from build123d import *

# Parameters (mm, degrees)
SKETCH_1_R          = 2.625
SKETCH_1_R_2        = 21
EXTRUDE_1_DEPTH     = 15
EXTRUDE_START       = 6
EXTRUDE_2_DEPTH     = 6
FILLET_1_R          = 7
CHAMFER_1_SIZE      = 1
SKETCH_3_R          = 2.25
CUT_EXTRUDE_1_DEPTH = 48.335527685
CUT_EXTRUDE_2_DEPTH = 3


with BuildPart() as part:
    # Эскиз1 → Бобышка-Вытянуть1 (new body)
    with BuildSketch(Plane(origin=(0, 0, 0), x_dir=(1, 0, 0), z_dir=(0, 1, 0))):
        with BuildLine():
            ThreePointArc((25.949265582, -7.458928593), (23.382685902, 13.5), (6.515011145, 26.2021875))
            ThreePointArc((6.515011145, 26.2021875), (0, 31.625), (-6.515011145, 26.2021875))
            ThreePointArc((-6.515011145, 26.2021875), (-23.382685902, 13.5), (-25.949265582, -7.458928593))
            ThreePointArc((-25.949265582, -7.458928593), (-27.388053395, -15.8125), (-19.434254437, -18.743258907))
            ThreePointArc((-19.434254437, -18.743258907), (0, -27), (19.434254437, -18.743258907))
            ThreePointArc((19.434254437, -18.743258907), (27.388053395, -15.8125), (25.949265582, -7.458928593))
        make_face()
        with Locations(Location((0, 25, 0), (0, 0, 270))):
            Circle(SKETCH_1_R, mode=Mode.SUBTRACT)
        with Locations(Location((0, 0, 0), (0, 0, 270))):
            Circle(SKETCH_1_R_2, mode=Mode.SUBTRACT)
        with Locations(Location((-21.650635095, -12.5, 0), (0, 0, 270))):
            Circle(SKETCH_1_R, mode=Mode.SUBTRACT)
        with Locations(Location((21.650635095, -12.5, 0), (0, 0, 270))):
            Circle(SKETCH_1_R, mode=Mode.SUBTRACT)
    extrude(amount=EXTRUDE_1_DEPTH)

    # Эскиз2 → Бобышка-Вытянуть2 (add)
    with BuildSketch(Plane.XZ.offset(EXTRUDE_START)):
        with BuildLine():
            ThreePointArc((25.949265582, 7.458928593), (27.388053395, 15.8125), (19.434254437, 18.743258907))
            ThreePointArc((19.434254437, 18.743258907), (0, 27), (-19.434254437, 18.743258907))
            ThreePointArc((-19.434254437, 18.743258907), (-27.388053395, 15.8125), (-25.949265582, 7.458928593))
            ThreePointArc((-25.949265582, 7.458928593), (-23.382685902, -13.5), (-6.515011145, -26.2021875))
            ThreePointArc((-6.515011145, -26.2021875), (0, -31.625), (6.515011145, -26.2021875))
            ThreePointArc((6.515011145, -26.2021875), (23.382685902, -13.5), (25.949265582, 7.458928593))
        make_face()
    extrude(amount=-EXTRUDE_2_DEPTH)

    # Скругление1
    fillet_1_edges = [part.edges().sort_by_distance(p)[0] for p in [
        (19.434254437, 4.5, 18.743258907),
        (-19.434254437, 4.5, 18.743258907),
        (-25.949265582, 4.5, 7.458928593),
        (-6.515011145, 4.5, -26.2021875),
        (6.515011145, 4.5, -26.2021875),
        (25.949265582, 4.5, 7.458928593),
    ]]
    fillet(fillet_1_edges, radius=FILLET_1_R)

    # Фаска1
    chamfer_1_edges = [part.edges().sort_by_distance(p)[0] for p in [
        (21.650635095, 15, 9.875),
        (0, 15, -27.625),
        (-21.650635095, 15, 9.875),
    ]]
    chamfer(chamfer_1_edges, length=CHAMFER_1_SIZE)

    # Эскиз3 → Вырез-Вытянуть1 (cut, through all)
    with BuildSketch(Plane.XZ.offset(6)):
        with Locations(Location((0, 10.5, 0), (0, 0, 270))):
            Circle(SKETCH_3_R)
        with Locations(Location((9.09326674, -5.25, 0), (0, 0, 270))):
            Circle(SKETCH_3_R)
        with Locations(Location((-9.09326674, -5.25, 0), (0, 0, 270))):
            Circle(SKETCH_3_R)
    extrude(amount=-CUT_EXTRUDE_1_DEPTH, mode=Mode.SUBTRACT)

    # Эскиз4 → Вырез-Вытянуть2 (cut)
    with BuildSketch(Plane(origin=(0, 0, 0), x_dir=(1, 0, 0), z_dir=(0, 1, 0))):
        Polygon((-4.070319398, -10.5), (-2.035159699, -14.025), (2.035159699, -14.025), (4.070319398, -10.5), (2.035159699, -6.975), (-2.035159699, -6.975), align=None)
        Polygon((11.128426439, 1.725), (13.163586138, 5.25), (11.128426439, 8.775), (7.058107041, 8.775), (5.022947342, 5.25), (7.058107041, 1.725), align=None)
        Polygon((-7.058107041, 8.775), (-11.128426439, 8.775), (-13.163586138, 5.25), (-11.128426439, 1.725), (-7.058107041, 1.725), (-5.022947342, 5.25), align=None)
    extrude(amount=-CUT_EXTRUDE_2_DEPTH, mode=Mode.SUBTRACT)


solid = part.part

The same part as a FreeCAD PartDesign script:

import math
import FreeCAD as App
import Part
import Sketcher
Q = App.Units.Quantity


def edges_at(feature, points):
    """Names of the edges that pass closest to the given points."""
    edges = feature.Shape.Edges
    near = lambda p: min(range(len(edges)), key=lambda i: edges[i].distToShape(Part.Vertex(*p))[0])
    return sorted({f"Edge{near(p) + 1}" for p in points})


def add_polygon(sketch, points):
    """Adds a closed chain of lines whose ends are joined by coincident constraints."""
    first, n = sketch.GeometryCount, len(points)
    for a, b in zip(points, points[1:] + points[:1]):
        sketch.addGeometry(Part.LineSegment(App.Vector(*a, 0), App.Vector(*b, 0)), False)
    for i in range(n):
        sketch.addConstraint(Sketcher.Constraint("Coincident", first + i, 2, first + (i + 1) % n, 1))

doc = App.newDocument("Part")
body = doc.addObject("PartDesign::Body", "Body")

sketch1 = doc.addObject("Sketcher::SketchObject", "Sketch")
body.addObject(sketch1)
sketch1.AttachmentSupport = (doc.XZ_Plane, [""])
sketch1.MapMode = "FlatFace"
sketch1.addGeometry([
    Part.ArcOfCircle(Part.Circle(App.Vector(0, 0, 0), App.Vector(0, 0, 1), 27), math.radians(-76.036914), math.radians(16.036914)),
    Part.ArcOfCircle(Part.Circle(App.Vector(0, -25, 0), App.Vector(0, 0, 1), 6.625), math.radians(-169.545056), math.radians(-10.454944)),
    Part.ArcOfCircle(Part.Circle(App.Vector(0, 0, 0), App.Vector(0, 0, 1), 27), math.radians(163.963086), math.radians(256.036914)),
    Part.ArcOfCircle(Part.Circle(App.Vector(-21.650635, 12.5, 0), App.Vector(0, 0, 1), 6.625), math.radians(70.454944), math.radians(229.545056)),
    Part.ArcOfCircle(Part.Circle(App.Vector(0, 0, 0), App.Vector(0, 0, 1), 27), math.radians(43.963086), math.radians(136.036914)),
    Part.ArcOfCircle(Part.Circle(App.Vector(21.650635, 12.5, 0), App.Vector(0, 0, 1), 6.625), math.radians(-49.545056), math.radians(109.545056)),
    Part.Circle(App.Vector(-21.650635, 12.5, 0), App.Vector(0, 0, 1), 2.625),
    Part.Circle(App.Vector(21.650635, 12.5, 0), App.Vector(0, 0, 1), 2.625),
    Part.Circle(App.Vector(0, 0, 0), App.Vector(0, 0, 1), 21),
    Part.Circle(App.Vector(0, -25, 0), App.Vector(0, 0, 1), 2.625),
], False)
sketch1.addConstraint([
    Sketcher.Constraint("Coincident", 0, 1, 1, 2),
    Sketcher.Constraint("Coincident", 1, 1, 2, 2),
    Sketcher.Constraint("Coincident", 2, 1, 3, 2),
    Sketcher.Constraint("Coincident", 3, 1, 4, 2),
    Sketcher.Constraint("Coincident", 4, 1, 5, 2),
    Sketcher.Constraint("Coincident", 5, 1, 0, 2),
    Sketcher.Constraint("Coincident", 0, 3, -1, 1),
    Sketcher.Constraint("Coincident", 2, 3, -1, 1),
    Sketcher.Constraint("Coincident", 4, 3, -1, 1),
    Sketcher.Constraint("Coincident", 8, 3, -1, 1),
    Sketcher.Constraint("Coincident", 6, 3, 3, 3),
    Sketcher.Constraint("Coincident", 7, 3, 5, 3),
    Sketcher.Constraint("Coincident", 9, 3, 1, 3),
    Sketcher.Constraint("Equal", 0, 2),
    Sketcher.Constraint("Equal", 1, 3),
    Sketcher.Constraint("Equal", 2, 4),
    Sketcher.Constraint("Equal", 3, 5),
    Sketcher.Constraint("Equal", 6, 7),
    Sketcher.Constraint("Equal", 7, 9),
    Sketcher.Constraint("Symmetric", 3, 3, 5, 3, -2),
    Sketcher.Constraint("PointOnObject", 1, 3, -2),
    Sketcher.Constraint("Diameter", 8, Q("42 mm")),
    Sketcher.Constraint("Radius", 0, Q("27 mm")),
    Sketcher.Constraint("Diameter", 6, Q("5.25 mm")),
    Sketcher.Constraint("DistanceY", 1, 3, -1, 1, Q("25 mm")),
    Sketcher.Constraint("Radius", 1, Q("6.625 mm")),
    Sketcher.Constraint("DistanceY", -1, 1, 3, 3, Q("12.5 mm")),
    Sketcher.Constraint("DistanceY", -1, 1, 2, 1, Q("7.458929 mm")),
])
pad1 = doc.addObject("PartDesign::Pad", "Pad")
body.addObject(pad1)
pad1.Profile = sketch1
pad1.Length = 15
pad1.Reversed = True

sketch2 = doc.addObject("Sketcher::SketchObject", "Sketch001")
body.addObject(sketch2)
sketch2.AttachmentSupport = (doc.XZ_Plane, [""])
sketch2.MapMode = "FlatFace"
sketch2.AttachmentOffset = App.Placement(App.Vector(0, 0, 6), App.Rotation())
sketch2.addGeometry([
    Part.ArcOfCircle(Part.Circle(App.Vector(21.650635, 12.5, 0), App.Vector(0, 0, 1), 6.625), math.radians(-49.545056), math.radians(109.545056)),
    Part.ArcOfCircle(Part.Circle(App.Vector(0, 0, 0), App.Vector(0, 0, 1), 27), math.radians(43.963086), math.radians(136.036914)),
    Part.ArcOfCircle(Part.Circle(App.Vector(-21.650635, 12.5, 0), App.Vector(0, 0, 1), 6.625), math.radians(70.454944), math.radians(229.545056)),
    Part.ArcOfCircle(Part.Circle(App.Vector(0, 0, 0), App.Vector(0, 0, 1), 27), math.radians(163.963086), math.radians(256.036914)),
    Part.ArcOfCircle(Part.Circle(App.Vector(0, -25, 0), App.Vector(0, 0, 1), 6.625), math.radians(-169.545056), math.radians(-10.454944)),
    Part.ArcOfCircle(Part.Circle(App.Vector(0, 0, 0), App.Vector(0, 0, 1), 27), math.radians(-76.036914), math.radians(16.036914)),
], False)
sketch2.addConstraint([
    Sketcher.Constraint("Coincident", 0, 2, 1, 1),
    Sketcher.Constraint("Coincident", 1, 2, 2, 1),
    Sketcher.Constraint("Coincident", 2, 2, 3, 1),
    Sketcher.Constraint("Coincident", 3, 2, 4, 1),
    Sketcher.Constraint("Coincident", 4, 2, 5, 1),
    Sketcher.Constraint("Coincident", 5, 2, 0, 1),
    Sketcher.Constraint("Coincident", 1, 3, -1, 1),
    Sketcher.Constraint("Coincident", 3, 3, -1, 1),
    Sketcher.Constraint("Coincident", 5, 3, -1, 1),
    Sketcher.Constraint("Equal", 0, 2),
    Sketcher.Constraint("Equal", 1, 3),
    Sketcher.Constraint("Equal", 2, 4),
    Sketcher.Constraint("Equal", 3, 5),
    Sketcher.Constraint("Symmetric", 0, 3, 2, 3, -2),
    Sketcher.Constraint("PointOnObject", 4, 3, -2),
    Sketcher.Constraint("Radius", 1, Q("27 mm")),
    Sketcher.Constraint("DistanceY", 4, 3, -1, 1, Q("25 mm")),
    Sketcher.Constraint("Radius", 0, Q("6.625 mm")),
    Sketcher.Constraint("DistanceY", -1, 1, 0, 3, Q("12.5 mm")),
    Sketcher.Constraint("DistanceY", -1, 1, 0, 2, Q("18.743259 mm")),
])
pad2 = doc.addObject("PartDesign::Pad", "Pad001")
body.addObject(pad2)
pad2.Profile = sketch2
pad2.Length = 6
pad2.Reversed = True
doc.recompute()

fillet = doc.addObject("PartDesign::Fillet", "Fillet")
body.addObject(fillet)
fillet.Base = (pad2, edges_at(pad2, [
    (19.434, 4.5, 18.743),
    (-19.434, 4.5, 18.743),
    (-25.949, 4.5, 7.459),
    (-6.515, 4.5, -26.202),
    (6.515, 4.5, -26.202),
    (25.949, 4.5, 7.459),
]))
fillet.Radius = 7
doc.recompute()

chamfer = doc.addObject("PartDesign::Chamfer", "Chamfer")
body.addObject(chamfer)
chamfer.Base = (fillet, edges_at(fillet, [(21.651, 15, 9.875), (0, 15, -27.625), (-21.651, 15, 9.875)]))
chamfer.Size = 1

sketch3 = doc.addObject("Sketcher::SketchObject", "Sketch002")
body.addObject(sketch3)
sketch3.AttachmentSupport = (doc.XZ_Plane, [""])
sketch3.MapMode = "FlatFace"
sketch3.AttachmentOffset = App.Placement(App.Vector(0, 0, 6), App.Rotation())
sketch3.addGeometry([
    Part.Circle(App.Vector(0, 10.5, 0), App.Vector(0, 0, 1), 2.25),
    Part.Circle(App.Vector(9.093267, -5.25, 0), App.Vector(0, 0, 1), 2.25),
    Part.Circle(App.Vector(-9.093267, -5.25, 0), App.Vector(0, 0, 1), 2.25),
], False)
sketch3.addConstraint([
    Sketcher.Constraint("Equal", 0, 1),
    Sketcher.Constraint("Equal", 1, 2),
    Sketcher.Constraint("Symmetric", 1, 3, 2, 3, -2),
    Sketcher.Constraint("PointOnObject", 0, 3, -2),
    Sketcher.Constraint("Diameter", 0, Q("4.5 mm")),
    Sketcher.Constraint("DistanceY", -1, 1, 0, 3, Q("10.5 mm")),
    Sketcher.Constraint("DistanceY", 1, 3, -1, 1, Q("5.25 mm")),
    Sketcher.Constraint("DistanceX", -1, 1, 1, 3, Q("9.093267 mm")),
])
pocket1 = doc.addObject("PartDesign::Pocket", "Pocket")
body.addObject(pocket1)
pocket1.Profile = sketch3
pocket1.Type = "ThroughAll"

sketch4 = doc.addObject("Sketcher::SketchObject", "Sketch003")
body.addObject(sketch4)
sketch4.AttachmentSupport = (doc.XZ_Plane, [""])
sketch4.MapMode = "FlatFace"
add_polygon(sketch4, [(-4.070319, 10.5), (-2.03516, 14.025), (2.03516, 14.025), (4.070319, 10.5), (2.03516, 6.975), (-2.03516, 6.975)])
add_polygon(sketch4, [(11.128426, -1.725), (13.163586, -5.25), (11.128426, -8.775), (7.058107, -8.775), (5.022947, -5.25), (7.058107, -1.725)])
add_polygon(sketch4, [(-7.058107, -8.775), (-11.128426, -8.775), (-13.163586, -5.25), (-11.128426, -1.725), (-7.058107, -1.725), (-5.022947, -5.25)])
sketch4.addConstraint([
    Sketcher.Constraint("Horizontal", 1),
    Sketcher.Constraint("Horizontal", 4),
    Sketcher.Constraint("Horizontal", 8),
    Sketcher.Constraint("Horizontal", 11),
    Sketcher.Constraint("Horizontal", 12),
    Sketcher.Constraint("Horizontal", 15),
    Sketcher.Constraint("Symmetric", 2, 2, 5, 2, -2),
    Sketcher.Constraint("Symmetric", 7, 2, 12, 2, -2),
    Sketcher.Constraint("Symmetric", 6, 2, 13, 2, -2),
    Sketcher.Constraint("Symmetric", 11, 2, 14, 2, -2),
    Sketcher.Constraint("Symmetric", 9, 2, 16, 2, -2),
    Sketcher.Constraint("Parallel", 0, 3),
    Sketcher.Constraint("Parallel", 2, 5),
    Sketcher.Constraint("Parallel", 5, 6),
    Sketcher.Constraint("Parallel", 3, 7),
    Sketcher.Constraint("Parallel", 6, 9),
    Sketcher.Constraint("Parallel", 7, 10),
    Sketcher.Constraint("Parallel", 9, 13),
    Sketcher.Constraint("Parallel", 13, 16),
    Sketcher.Constraint("Parallel", 14, 17),
    Sketcher.Constraint("Horizontal", 6, 2, 9, 2),
    Sketcher.Constraint("Vertical", 1, 2, 3, 2),
    Sketcher.Constraint("Vertical", 8, 2, 10, 2),
    Sketcher.Constraint("Equal", 4, 8),
    Sketcher.Constraint("Equal", 5, 6),
    Sketcher.Constraint("Angle", 0, Q("60 deg")),
    Sketcher.Constraint("DistanceY", -1, 1, 2, 2, Q("10.5 mm")),
    Sketcher.Constraint("DistanceY", 7, 2, 1, 2, Q("22.8 mm")),
    Sketcher.Constraint("DistanceY", 10, 2, 3, 2, Q("8.7 mm")),
    Sketcher.Constraint("DistanceX", 1, 1, 1, 2, Q("4.070319 mm")),
    Sketcher.Constraint("DistanceX", -1, 1, 6, 2, Q("13.163586 mm")),
])
pocket2 = doc.addObject("PartDesign::Pocket", "Pocket001")
body.addObject(pocket2)
pocket2.Profile = sketch4
pocket2.Length = 3
pocket2.Reversed = True

doc.recompute()
